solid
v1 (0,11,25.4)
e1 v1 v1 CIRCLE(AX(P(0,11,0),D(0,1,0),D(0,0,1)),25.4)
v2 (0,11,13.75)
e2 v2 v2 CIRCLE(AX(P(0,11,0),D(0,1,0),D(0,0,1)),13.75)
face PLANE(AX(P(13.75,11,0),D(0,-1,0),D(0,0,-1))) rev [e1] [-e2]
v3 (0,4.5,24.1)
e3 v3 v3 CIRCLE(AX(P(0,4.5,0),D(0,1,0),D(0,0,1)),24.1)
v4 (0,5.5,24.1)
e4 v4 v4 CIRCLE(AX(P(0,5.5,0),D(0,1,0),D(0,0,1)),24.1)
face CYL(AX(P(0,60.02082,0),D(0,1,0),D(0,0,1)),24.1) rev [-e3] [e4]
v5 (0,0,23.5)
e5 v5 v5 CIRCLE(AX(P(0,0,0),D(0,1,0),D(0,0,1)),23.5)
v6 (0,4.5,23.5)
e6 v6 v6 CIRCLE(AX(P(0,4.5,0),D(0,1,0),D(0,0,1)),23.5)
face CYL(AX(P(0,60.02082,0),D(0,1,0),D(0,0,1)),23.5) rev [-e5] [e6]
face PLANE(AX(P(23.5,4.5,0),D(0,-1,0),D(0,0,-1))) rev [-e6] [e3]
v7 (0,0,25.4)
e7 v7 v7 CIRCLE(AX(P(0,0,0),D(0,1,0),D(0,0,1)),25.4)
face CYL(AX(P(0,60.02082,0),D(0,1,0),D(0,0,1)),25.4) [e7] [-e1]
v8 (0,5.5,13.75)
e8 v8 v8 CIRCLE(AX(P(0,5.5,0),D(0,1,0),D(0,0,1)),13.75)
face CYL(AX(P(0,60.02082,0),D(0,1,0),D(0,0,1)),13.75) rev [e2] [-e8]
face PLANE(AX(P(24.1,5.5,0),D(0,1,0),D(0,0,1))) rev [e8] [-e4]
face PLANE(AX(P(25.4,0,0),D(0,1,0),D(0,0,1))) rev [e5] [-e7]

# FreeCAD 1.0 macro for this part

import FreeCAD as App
import Part
import Sketcher

V = App.Vector

doc = App.newDocument("Part")
body = doc.addObject("PartDesign::Body", "Body")

sketch1 = body.newObject("Sketcher::SketchObject", "Sketch")
sketch1.AttachmentSupport = (doc.getObject("XY_Plane"), [""])
sketch1.MapMode = "FlatFace"
sketch1.addGeometry([
    Part.LineSegment(V(23.5, 4.5, 0), V(23.5, 0, 0)),
    Part.LineSegment(V(23.5, 0, 0), V(25.4, 0, 0)),
    Part.LineSegment(V(25.4, 0, 0), V(25.4, 11, 0)),
    Part.LineSegment(V(25.4, 11, 0), V(13.75, 11, 0)),
    Part.LineSegment(V(13.75, 11, 0), V(13.75, 5.5, 0)),
    Part.LineSegment(V(13.75, 5.5, 0), V(24.1, 5.5, 0)),
    Part.LineSegment(V(24.1, 5.5, 0), V(24.1, 4.5, 0)),
    Part.LineSegment(V(24.1, 4.5, 0), V(23.5, 4.5, 0)),
], False)
sketch1.addConstraint([
    Sketcher.Constraint("Coincident", 0, 2, 1, 1),
    Sketcher.Constraint("Coincident", 1, 2, 2, 1),
    Sketcher.Constraint("Coincident", 2, 2, 3, 1),
    Sketcher.Constraint("Coincident", 3, 2, 4, 1),
    Sketcher.Constraint("Coincident", 4, 2, 5, 1),
    Sketcher.Constraint("Coincident", 5, 2, 6, 1),
    Sketcher.Constraint("Coincident", 6, 2, 7, 1),
    Sketcher.Constraint("Coincident", 7, 2, 0, 1),
    Sketcher.Constraint("Vertical", 0),
    Sketcher.Constraint("Horizontal", 1),
    Sketcher.Constraint("Vertical", 2),
    Sketcher.Constraint("Horizontal", 3),
    Sketcher.Constraint("Vertical", 4),
    Sketcher.Constraint("Horizontal", 5),
    Sketcher.Constraint("Vertical", 6),
    Sketcher.Constraint("Horizontal", 7),
    Sketcher.Constraint("PointOnObject", 0, 2, -1),
    Sketcher.Constraint("DistanceY", 2, 1, 2, 2, 11.0),
    Sketcher.Constraint("DistanceY", 6, 2, 6, 1, 1.0),
    Sketcher.Constraint("DistanceX", 1, 1, 1, 2, 1.9),
    Sketcher.Constraint("DistanceX", 7, 2, 7, 1, 0.6),
    Sketcher.Constraint("DistanceY", 0, 2, 0, 1, 4.5),
    Sketcher.Constraint("DistanceX", 3, 2, 3, 1, 11.65),
    Sketcher.Constraint("DistanceX", -1, 1, 0, 2, 23.5),
])
revolution = body.newObject("PartDesign::Revolution", "Revolution")
revolution.Profile = sketch1
revolution.ReferenceAxis = (sketch1, ["V_Axis"])
revolution.Angle = 360

doc.recompute()
